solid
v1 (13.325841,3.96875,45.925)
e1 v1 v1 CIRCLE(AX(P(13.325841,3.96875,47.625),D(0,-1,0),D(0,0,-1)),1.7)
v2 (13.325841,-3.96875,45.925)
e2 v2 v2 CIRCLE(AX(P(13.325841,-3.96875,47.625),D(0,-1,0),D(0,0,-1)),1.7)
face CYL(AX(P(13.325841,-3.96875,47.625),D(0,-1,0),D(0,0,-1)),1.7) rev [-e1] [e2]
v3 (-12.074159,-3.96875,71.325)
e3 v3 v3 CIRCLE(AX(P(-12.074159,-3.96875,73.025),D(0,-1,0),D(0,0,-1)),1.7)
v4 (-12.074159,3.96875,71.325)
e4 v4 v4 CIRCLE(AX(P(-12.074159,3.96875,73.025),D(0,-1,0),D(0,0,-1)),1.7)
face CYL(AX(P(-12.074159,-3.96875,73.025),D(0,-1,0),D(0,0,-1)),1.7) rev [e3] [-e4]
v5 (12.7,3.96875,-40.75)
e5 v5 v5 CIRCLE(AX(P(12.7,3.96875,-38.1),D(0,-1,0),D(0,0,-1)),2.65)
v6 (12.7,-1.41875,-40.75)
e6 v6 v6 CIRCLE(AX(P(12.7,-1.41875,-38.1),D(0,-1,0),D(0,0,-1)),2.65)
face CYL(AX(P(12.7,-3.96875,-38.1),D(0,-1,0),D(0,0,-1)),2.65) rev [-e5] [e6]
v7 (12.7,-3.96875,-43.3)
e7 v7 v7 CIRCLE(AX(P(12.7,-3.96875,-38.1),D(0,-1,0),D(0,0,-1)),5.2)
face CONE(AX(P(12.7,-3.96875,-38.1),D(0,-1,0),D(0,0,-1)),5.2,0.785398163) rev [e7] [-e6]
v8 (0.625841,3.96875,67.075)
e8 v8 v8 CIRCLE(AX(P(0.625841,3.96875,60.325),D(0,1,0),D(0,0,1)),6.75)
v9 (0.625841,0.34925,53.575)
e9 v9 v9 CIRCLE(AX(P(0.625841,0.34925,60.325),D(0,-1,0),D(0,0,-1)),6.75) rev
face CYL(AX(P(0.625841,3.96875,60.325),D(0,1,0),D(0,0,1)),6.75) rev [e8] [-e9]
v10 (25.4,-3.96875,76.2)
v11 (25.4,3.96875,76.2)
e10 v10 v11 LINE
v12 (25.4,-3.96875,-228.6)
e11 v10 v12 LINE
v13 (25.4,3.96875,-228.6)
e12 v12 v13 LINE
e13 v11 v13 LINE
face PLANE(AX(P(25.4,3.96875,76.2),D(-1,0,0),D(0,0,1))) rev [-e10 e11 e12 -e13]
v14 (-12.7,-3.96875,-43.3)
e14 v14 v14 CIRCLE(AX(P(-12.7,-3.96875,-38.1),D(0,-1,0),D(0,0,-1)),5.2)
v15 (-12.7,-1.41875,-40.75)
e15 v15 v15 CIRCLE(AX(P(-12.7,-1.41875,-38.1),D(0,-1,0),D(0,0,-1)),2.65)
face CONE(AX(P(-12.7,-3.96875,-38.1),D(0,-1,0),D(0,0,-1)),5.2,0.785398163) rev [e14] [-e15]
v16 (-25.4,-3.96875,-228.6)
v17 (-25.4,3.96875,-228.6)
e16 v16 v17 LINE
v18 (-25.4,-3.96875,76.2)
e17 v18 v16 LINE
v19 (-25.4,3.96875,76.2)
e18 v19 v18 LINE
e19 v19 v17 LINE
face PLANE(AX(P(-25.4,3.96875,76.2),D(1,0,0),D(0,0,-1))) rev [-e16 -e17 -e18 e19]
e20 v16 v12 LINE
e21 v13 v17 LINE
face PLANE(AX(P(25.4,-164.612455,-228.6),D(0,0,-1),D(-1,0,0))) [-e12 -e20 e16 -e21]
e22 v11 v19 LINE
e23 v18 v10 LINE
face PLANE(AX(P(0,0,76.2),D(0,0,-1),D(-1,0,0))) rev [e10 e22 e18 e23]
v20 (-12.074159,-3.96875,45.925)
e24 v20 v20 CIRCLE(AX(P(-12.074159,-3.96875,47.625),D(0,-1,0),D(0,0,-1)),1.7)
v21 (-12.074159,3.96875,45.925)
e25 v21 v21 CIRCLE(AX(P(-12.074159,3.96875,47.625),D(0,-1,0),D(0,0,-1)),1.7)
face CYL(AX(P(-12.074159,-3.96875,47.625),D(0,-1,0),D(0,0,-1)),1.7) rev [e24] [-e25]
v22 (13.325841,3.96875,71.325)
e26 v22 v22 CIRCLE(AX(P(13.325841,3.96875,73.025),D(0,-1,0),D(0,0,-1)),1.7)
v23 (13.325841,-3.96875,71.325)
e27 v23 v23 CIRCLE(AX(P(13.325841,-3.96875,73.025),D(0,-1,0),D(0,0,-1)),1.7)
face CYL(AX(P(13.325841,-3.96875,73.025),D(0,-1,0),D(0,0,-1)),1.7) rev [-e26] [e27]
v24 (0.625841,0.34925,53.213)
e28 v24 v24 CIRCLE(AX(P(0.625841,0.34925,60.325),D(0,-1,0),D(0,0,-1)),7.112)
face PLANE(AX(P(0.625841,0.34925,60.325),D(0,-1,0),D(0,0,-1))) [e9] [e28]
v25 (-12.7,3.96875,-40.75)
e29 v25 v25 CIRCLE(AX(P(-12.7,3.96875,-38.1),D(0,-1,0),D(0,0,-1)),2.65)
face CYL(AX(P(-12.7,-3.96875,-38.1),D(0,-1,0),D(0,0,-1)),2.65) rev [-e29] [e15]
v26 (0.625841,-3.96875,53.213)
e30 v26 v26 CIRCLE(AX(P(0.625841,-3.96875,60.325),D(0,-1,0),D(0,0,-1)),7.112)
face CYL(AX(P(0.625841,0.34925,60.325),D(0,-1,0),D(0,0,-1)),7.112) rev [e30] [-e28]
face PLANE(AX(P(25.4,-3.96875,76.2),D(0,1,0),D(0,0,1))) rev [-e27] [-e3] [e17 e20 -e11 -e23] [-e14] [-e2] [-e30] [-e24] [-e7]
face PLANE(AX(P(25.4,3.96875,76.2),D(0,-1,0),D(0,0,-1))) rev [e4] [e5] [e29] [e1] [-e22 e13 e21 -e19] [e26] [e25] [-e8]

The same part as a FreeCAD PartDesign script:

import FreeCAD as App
import Part
import Sketcher
from FreeCAD import Vector
Q = App.Units.Quantity


def add_polygon(sketch, points):
    """Adds a closed chain of lines whose ends are joined by coincident constraints."""
    first, n = sketch.GeometryCount, len(points)
    for a, b in zip(points, points[1:] + points[:1]):
        sketch.addGeometry(Part.LineSegment(App.Vector(*a, 0), App.Vector(*b, 0)), False)
    for i in range(n):
        sketch.addConstraint(Sketcher.Constraint("Coincident", first + i, 2, first + (i + 1) % n, 1))

doc = App.newDocument("Part")
body = doc.addObject("PartDesign::Body", "Body")

# Sketch on XY plane
sketch1 = body.newObject("Sketcher::SketchObject", "Sketch")
sketch1.AttachmentSupport = (doc.getObject("XY_Plane"), [""])
sketch1.MapMode = "FlatFace"
add_polygon(sketch1, [(-25, 4), (-25, -4), (25, -4), (25, 4)])  # lines 0-3
sketch1.addConstraint([
    Sketcher.Constraint("Vertical", 0),
    Sketcher.Constraint("Horizontal", 1),
    Sketcher.Constraint("Vertical", 2),
    Sketcher.Constraint("Horizontal", 3),
    Sketcher.Constraint("Symmetric", 0, 2, 2, 2, -1, 1),
    Sketcher.Constraint("DistanceX", 1, 1, 1, 2, Q("2 in")),
    Sketcher.Constraint("DistanceY", 0, 2, 0, 1, Q("0.3125 in")),
])
pad1 = body.newObject("PartDesign::Pad", "Pad")
pad1.Profile = sketch1
pad1.Type = "TwoLengths"
pad1.Length = Q("3 in")
pad1.Length2 = Q("3 in")

# Sketch on XZ plane
sketch2 = body.newObject("Sketcher::SketchObject", "Sketch001")
sketch2.AttachmentSupport = (doc.getObject("XZ_Plane"), [""])
sketch2.MapMode = "FlatFace"
sketch2.AttachmentOffset = App.Placement(Vector(0, 0, -0.15625 * 25.4), App.Rotation())
sketch2.addGeometry(Part.Circle(Vector(1, 60, 0), Vector(0, 0, 1), 7), False)
sketch2.addConstraint([
    Sketcher.Constraint("Diameter", 0, Q("13.5 mm")),
    Sketcher.Constraint("DistanceY", -1, 1, 0, 3, Q("2.375 in")),
    Sketcher.Constraint("DistanceX", -1, 1, 0, 3, Q("0.625841 mm")),
])
doc.recompute()
hole = body.newObject("PartDesign::Hole", "Hole")
hole.Profile = sketch2
hole.ThreadType = "None"
hole.Diameter = 13.5
hole.DepthType = "ThroughAll"
hole.Reversed = True

# Sketch on XZ plane
sketch3 = body.newObject("Sketcher::SketchObject", "Sketch002")
sketch3.AttachmentSupport = (doc.getObject("XZ_Plane"), [""])
sketch3.MapMode = "FlatFace"
sketch3.AttachmentOffset = App.Placement(Vector(0, 0, 0.15625 * 25.4), App.Rotation())
sketch3.addGeometry([
    Part.Circle(Vector(12.7, -38.1, 0), Vector(0, 0, 1), 2.6),
    Part.Circle(Vector(-12.7, -38.1, 0), Vector(0, 0, 1), 2.6),
], False)
sketch3.addConstraint([
    Sketcher.Constraint("Equal", 0, 1),
    Sketcher.Constraint("Symmetric", 0, 3, 1, 3, -2),
    Sketcher.Constraint("DistanceX", 1, 3, 0, 3, Q("1 in")),
    Sketcher.Constraint("DistanceY", 0, 3, -1, 1, Q("1.5 in")),
    Sketcher.Constraint("Diameter", 0, Q("5.3 mm")),
])
doc.recompute()
hole2 = body.newObject("PartDesign::Hole", "Hole001")
hole2.Profile = sketch3
hole2.ThreadType = "None"
hole2.Diameter = 5.3
hole2.DepthType = "ThroughAll"
hole2.HoleCutType = "Countersink"
hole2.HoleCutDiameter = 10.4
hole2.HoleCutCountersinkAngle = 90

# Sketch on XZ plane
sketch4 = body.newObject("Sketcher::SketchObject", "Sketch003")
sketch4.AttachmentSupport = (doc.getObject("XZ_Plane"), [""])
sketch4.MapMode = "FlatFace"
sketch4.AttachmentOffset = App.Placement(Vector(0, 0, -0.15625 * 25.4), App.Rotation())
add_polygon(sketch4, [(-25, -229), (-25, -76), (25, -76), (25, -229)])  # lines 0-3
sketch4.addConstraint([
    Sketcher.Constraint("Vertical", 0),
    Sketcher.Constraint("Horizontal", 1),
    Sketcher.Constraint("Vertical", 2),
    Sketcher.Constraint("Horizontal", 3),
    Sketcher.Constraint("DistanceX", 1, 1, 1, 2, Q("2 in")),
    Sketcher.Constraint("DistanceY", 0, 1, 0, 2, Q("6 in")),
    Sketcher.Constraint("DistanceX", 0, 2, -1, 1, Q("1 in")),
    Sketcher.Constraint("DistanceY", 0, 2, -1, 1, Q("3 in")),
])
pad2 = body.newObject("PartDesign::Pad", "Pad001")
pad2.Profile = sketch4
pad2.Length = Q("0.3125 in")

# Sketch on XZ plane
sketch5 = body.newObject("Sketcher::SketchObject", "Sketch004")
sketch5.AttachmentSupport = (doc.getObject("XZ_Plane"), [""])
sketch5.MapMode = "FlatFace"
sketch5.AttachmentOffset = App.Placement(Vector(0, 0, 0.15625 * 25.4), App.Rotation())
sketch5.addGeometry(Part.Circle(Vector(1, 60, 0), Vector(0, 0, 1), 7), False)
sketch5.addConstraint([
    Sketcher.Constraint("Diameter", 0, Q("0.56 in")),
    Sketcher.Constraint("DistanceY", -1, 1, 0, 3, Q("2.375 in")),
    Sketcher.Constraint("DistanceX", -1, 1, 0, 3, Q("0.625841 mm")),
])
pocket1 = body.newObject("PartDesign::Pocket", "Pocket")
pocket1.Profile = sketch5
pocket1.Length = Q("0.17 in")

# Sketch on XZ plane
sketch6 = body.newObject("Sketcher::SketchObject", "Sketch005")
sketch6.AttachmentSupport = (doc.getObject("XZ_Plane"), [""])
sketch6.MapMode = "FlatFace"
sketch6.AttachmentOffset = App.Placement(Vector(0, 0, 0.15625 * 25.4), App.Rotation())
sketch6.addGeometry([
    Part.Circle(Vector(13.3, 47.6, 0), Vector(0, 0, 1), 1.7),
    Part.Circle(Vector(13.3, 73, 0), Vector(0, 0, 1), 1.7),
    Part.Circle(Vector(-12.1, 73, 0), Vector(0, 0, 1), 1.7),
    Part.Circle(Vector(-12.1, 47.6, 0), Vector(0, 0, 1), 1.7),
], False)
sketch6.addConstraint([
    Sketcher.Constraint("Equal", 0, 1),
    Sketcher.Constraint("Equal", 1, 2),
    Sketcher.Constraint("Equal", 2, 3),
    Sketcher.Constraint("Horizontal", 1, 3, 2, 3),
    Sketcher.Constraint("Horizontal", 0, 3, 3, 3),
    Sketcher.Constraint("Vertical", 0, 3, 1, 3),
    Sketcher.Constraint("Vertical", 2, 3, 3, 3),
    Sketcher.Constraint("DistanceY", 0, 3, 1, 3, Q("1 in")),
    Sketcher.Constraint("DistanceX", 2, 3, 1, 3, Q("1 in")),
    Sketcher.Constraint("Diameter", 0, Q("3.4 mm")),
    Sketcher.Constraint("DistanceY", -1, 1, 0, 3, Q("1.875 in")),
    Sketcher.Constraint("DistanceX", -1, 1, 0, 3, Q("13.325841 mm")),
])
doc.recompute()
hole3 = body.newObject("PartDesign::Hole", "Hole002")
hole3.Profile = sketch6
hole3.ThreadType = "None"
hole3.Diameter = 3.4
hole3.DepthType = "Dimension"
hole3.Depth = Q("0.6 in")
hole3.DrillPoint = "Angled"
hole3.DrillPointAngle = 118

doc.recompute()
